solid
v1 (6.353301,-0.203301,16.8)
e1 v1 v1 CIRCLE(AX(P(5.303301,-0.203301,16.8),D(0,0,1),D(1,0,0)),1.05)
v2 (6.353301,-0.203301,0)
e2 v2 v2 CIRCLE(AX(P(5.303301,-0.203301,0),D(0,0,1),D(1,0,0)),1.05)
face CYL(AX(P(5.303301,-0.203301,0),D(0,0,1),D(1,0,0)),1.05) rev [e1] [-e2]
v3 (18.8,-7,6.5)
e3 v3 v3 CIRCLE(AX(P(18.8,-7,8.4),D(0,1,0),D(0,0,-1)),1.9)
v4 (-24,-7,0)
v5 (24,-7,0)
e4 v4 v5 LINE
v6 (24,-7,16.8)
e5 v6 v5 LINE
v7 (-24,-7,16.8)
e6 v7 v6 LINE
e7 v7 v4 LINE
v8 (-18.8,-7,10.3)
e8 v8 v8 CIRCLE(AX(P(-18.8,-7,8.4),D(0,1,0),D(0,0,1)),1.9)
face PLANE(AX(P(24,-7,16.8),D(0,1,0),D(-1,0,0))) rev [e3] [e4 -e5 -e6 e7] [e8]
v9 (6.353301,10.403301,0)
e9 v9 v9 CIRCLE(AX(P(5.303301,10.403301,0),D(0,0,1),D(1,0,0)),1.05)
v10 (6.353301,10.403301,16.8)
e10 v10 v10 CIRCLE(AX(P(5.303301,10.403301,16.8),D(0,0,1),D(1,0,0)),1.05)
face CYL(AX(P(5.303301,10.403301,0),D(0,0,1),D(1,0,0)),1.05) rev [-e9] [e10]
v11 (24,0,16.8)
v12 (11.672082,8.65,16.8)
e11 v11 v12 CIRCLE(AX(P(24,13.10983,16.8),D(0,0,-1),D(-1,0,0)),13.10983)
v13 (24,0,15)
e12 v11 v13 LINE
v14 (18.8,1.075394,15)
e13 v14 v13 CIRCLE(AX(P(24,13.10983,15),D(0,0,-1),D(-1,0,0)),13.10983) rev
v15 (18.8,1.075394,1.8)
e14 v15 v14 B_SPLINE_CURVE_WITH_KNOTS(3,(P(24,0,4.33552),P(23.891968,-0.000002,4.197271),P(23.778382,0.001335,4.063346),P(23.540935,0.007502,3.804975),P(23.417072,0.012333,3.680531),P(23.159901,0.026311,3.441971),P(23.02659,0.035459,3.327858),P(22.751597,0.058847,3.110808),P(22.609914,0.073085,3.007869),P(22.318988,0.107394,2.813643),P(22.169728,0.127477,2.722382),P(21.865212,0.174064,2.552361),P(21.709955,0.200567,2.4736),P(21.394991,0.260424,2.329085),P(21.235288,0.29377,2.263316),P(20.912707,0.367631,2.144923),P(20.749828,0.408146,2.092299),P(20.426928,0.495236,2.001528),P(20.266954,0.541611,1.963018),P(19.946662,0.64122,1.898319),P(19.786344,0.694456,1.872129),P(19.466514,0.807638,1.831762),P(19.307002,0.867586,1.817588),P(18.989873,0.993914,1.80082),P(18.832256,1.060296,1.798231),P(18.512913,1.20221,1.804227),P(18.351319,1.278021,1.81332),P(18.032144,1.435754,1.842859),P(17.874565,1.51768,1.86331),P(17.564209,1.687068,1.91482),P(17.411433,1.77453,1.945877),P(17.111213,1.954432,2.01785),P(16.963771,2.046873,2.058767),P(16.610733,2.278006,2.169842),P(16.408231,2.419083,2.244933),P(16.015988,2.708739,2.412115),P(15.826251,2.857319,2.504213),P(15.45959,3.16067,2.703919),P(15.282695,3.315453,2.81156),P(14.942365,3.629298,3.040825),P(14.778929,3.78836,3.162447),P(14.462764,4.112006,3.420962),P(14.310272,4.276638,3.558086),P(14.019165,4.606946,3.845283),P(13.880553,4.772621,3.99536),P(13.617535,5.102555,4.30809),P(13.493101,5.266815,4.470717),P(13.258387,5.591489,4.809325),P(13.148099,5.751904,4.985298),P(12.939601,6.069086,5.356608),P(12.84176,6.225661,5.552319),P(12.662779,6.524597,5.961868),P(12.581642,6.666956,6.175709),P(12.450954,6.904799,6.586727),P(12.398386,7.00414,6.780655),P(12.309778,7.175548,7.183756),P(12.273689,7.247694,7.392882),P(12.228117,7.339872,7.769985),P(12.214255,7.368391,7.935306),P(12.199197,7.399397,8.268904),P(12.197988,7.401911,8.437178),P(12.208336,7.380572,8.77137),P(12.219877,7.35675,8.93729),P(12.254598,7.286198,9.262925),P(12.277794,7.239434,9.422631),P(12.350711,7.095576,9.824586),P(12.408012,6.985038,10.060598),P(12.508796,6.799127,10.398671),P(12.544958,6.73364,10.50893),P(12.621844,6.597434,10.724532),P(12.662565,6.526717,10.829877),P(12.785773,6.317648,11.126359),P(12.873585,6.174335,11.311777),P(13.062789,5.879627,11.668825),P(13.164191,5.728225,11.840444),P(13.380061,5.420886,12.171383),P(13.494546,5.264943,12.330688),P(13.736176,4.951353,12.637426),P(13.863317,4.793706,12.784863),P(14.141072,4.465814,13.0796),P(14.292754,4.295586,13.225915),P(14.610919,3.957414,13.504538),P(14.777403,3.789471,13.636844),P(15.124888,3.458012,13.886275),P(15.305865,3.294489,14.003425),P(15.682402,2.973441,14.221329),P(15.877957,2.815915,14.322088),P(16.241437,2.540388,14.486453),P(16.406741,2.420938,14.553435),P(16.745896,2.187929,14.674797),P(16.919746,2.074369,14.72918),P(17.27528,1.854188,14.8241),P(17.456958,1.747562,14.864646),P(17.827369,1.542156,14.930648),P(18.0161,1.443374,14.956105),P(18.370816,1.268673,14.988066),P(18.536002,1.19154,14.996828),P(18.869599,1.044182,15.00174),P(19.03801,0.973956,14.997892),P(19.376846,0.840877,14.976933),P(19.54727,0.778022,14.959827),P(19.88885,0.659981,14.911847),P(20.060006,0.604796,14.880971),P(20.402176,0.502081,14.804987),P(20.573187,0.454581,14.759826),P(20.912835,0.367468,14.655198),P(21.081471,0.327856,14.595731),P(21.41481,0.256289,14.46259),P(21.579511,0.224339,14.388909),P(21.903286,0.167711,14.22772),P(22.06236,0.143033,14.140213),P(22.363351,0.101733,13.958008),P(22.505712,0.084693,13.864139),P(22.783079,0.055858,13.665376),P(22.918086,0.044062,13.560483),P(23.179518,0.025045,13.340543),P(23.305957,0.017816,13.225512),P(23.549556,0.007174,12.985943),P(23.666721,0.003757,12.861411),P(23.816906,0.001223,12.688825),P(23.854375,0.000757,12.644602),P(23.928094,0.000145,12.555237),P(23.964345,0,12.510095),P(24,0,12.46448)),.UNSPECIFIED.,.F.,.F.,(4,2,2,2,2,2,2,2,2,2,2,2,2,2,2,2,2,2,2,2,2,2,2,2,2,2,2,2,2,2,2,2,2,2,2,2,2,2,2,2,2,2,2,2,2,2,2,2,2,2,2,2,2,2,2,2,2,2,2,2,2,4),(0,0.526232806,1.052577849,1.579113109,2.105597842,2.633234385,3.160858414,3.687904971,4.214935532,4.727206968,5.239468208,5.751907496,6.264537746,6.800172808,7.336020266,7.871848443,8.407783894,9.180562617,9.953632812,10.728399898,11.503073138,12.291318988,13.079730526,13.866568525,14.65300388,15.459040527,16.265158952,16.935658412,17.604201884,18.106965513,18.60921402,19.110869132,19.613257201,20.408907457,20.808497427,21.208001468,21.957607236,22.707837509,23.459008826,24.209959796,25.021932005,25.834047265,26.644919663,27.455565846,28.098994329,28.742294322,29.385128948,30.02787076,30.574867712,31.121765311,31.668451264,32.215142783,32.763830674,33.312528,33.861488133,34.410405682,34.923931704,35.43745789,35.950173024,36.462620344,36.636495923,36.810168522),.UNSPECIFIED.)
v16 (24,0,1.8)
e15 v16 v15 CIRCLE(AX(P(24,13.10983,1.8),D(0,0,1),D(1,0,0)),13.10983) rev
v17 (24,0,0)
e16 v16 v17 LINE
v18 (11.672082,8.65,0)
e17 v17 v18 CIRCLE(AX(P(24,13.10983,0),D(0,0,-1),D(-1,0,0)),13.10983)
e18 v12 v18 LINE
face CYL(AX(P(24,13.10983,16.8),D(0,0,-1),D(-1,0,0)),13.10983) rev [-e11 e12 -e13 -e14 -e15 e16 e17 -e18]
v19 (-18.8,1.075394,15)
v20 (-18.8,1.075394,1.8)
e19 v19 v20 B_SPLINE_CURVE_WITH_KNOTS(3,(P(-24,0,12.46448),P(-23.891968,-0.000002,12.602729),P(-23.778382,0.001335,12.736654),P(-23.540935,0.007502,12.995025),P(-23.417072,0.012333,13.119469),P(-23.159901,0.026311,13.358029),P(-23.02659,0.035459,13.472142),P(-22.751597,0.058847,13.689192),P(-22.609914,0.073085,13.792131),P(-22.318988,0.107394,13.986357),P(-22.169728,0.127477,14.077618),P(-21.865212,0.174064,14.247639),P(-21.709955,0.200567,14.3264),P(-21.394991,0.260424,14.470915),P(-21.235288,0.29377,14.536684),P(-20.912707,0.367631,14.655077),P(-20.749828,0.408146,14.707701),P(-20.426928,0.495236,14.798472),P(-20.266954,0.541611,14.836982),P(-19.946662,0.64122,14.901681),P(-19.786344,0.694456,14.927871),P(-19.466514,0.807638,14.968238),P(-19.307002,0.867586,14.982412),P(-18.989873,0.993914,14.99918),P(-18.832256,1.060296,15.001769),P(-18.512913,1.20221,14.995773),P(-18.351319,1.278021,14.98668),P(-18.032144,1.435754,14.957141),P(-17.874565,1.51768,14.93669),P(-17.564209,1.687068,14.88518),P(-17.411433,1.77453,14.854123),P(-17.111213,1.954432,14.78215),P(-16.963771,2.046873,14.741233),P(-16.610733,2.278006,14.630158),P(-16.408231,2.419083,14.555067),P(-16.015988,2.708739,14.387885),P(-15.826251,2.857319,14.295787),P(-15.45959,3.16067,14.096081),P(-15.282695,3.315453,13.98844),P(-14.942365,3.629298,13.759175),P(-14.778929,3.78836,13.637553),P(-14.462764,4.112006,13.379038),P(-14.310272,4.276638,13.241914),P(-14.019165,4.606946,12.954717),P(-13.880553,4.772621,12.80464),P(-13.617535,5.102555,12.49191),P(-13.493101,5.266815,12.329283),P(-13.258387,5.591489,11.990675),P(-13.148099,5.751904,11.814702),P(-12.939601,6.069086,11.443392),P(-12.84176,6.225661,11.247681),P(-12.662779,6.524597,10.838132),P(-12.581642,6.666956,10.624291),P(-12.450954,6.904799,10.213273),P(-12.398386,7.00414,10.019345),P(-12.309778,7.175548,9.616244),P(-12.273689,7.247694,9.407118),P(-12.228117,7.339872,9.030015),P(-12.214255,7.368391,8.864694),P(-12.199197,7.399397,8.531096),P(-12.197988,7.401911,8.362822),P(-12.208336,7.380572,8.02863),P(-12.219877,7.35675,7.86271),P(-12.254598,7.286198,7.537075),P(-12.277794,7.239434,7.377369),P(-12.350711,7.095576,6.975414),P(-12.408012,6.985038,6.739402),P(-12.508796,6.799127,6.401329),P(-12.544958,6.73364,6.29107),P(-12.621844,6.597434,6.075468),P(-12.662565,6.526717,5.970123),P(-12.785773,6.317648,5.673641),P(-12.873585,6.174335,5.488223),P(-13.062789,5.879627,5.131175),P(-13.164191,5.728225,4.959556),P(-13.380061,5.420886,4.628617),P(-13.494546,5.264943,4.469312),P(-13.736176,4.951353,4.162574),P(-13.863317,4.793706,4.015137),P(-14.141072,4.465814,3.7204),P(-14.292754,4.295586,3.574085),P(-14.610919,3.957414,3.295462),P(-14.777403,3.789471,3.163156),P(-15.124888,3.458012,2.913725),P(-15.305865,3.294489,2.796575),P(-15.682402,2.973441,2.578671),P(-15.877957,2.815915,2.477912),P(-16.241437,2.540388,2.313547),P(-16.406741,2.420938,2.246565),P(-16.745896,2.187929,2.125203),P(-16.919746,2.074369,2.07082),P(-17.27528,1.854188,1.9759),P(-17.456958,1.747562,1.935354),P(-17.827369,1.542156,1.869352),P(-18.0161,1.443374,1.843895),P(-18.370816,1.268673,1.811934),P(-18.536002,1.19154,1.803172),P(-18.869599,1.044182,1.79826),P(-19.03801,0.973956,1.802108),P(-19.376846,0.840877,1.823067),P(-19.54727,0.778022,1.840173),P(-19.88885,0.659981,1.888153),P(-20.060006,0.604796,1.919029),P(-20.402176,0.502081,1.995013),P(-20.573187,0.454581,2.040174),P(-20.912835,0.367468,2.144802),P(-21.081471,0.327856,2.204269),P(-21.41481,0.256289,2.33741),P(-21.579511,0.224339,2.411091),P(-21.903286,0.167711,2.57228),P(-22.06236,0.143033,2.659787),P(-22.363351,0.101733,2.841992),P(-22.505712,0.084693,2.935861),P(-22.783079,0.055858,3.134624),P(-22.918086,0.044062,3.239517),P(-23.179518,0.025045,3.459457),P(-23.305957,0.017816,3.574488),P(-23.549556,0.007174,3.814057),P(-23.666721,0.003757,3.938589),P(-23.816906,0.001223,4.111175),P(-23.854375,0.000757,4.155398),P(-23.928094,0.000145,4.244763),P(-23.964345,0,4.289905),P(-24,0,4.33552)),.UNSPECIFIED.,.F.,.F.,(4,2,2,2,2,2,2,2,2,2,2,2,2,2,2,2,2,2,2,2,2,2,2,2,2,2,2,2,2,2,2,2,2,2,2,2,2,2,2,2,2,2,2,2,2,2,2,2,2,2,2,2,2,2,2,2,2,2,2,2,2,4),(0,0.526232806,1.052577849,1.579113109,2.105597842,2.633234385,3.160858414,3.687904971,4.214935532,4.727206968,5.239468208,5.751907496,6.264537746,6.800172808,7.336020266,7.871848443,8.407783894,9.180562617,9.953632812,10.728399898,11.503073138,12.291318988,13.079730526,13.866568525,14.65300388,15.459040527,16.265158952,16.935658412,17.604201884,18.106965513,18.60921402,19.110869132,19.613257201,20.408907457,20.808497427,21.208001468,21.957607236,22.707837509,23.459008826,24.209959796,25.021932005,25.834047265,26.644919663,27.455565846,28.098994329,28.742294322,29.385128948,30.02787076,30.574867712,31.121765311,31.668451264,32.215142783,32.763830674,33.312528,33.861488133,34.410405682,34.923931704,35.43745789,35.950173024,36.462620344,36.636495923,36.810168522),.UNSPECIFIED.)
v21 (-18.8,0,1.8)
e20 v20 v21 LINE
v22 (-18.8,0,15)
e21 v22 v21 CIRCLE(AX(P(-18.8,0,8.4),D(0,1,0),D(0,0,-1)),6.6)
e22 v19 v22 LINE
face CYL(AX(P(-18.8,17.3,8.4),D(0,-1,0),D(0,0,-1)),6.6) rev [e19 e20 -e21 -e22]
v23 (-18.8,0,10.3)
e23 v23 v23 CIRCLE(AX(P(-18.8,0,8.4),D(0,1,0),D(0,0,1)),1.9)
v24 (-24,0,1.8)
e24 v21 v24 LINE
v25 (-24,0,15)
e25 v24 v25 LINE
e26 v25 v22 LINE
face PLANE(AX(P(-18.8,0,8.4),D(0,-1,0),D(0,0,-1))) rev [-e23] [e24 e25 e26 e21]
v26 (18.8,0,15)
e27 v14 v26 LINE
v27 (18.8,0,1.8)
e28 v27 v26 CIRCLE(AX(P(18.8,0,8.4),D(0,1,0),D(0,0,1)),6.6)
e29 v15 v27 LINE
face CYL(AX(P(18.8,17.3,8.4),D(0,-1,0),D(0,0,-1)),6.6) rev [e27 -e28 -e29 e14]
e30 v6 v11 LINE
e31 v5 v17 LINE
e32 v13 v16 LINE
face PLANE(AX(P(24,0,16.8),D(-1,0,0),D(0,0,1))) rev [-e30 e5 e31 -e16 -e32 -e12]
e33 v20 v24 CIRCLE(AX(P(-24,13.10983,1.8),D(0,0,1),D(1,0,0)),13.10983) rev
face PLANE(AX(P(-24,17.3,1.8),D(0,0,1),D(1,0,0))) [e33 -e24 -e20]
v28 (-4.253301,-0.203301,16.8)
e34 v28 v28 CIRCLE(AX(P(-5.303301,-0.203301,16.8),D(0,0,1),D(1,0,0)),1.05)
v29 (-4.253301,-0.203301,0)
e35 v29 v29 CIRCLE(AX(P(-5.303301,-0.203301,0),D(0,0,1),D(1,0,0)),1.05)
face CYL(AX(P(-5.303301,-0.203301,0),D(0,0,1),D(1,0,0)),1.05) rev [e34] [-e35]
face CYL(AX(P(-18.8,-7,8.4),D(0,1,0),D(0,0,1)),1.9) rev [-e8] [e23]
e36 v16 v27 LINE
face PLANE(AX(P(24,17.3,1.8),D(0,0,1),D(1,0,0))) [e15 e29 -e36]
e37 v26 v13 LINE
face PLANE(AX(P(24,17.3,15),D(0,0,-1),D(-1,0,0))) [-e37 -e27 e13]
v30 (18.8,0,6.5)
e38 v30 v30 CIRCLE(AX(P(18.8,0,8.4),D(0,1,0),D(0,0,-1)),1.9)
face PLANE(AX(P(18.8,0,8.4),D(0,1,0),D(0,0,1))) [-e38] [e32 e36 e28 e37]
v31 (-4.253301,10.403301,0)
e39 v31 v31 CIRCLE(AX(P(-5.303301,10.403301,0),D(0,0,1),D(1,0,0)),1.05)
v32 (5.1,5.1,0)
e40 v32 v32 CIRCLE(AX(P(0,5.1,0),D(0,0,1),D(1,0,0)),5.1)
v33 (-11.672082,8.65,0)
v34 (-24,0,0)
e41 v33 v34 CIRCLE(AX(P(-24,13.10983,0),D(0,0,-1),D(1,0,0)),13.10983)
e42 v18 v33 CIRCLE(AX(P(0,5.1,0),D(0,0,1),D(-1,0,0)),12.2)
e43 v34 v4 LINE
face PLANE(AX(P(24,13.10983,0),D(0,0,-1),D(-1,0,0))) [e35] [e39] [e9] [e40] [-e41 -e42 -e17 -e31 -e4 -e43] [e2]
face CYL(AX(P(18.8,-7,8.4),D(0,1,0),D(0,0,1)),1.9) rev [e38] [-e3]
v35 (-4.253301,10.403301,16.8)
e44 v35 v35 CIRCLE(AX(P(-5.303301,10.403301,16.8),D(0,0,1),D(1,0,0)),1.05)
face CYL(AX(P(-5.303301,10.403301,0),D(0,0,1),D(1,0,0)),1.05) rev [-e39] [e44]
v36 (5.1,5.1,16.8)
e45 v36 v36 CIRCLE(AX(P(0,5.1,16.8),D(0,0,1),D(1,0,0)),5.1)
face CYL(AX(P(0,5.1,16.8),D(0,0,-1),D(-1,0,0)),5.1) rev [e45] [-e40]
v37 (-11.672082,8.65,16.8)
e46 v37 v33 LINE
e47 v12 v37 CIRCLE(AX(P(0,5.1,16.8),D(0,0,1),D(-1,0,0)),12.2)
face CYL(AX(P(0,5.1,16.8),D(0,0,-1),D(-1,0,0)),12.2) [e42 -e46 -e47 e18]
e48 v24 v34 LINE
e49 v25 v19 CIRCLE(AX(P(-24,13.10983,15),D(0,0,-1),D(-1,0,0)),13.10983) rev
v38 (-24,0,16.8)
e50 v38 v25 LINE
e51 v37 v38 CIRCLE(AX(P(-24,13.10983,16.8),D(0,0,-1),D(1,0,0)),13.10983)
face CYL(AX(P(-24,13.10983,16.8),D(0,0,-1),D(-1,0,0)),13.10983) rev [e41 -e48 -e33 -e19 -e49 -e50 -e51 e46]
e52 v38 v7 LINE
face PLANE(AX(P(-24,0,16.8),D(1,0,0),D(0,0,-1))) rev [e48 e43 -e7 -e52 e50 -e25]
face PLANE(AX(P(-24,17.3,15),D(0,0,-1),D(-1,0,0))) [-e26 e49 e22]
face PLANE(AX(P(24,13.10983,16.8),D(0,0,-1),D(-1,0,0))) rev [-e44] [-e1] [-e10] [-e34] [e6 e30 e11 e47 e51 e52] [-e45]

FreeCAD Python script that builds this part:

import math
import FreeCAD as App
import Part
import Sketcher

doc = App.newDocument("Part")
body = doc.addObject("PartDesign::Body", "Body")

sketch1 = body.newObject("Sketcher::SketchObject", "Sketch")
sketch1.AttachmentSupport = (doc.getObject("XY_Plane"), [""])
sketch1.MapMode = "FlatFace"
sketch1.addGeometry([
    Part.LineSegment(App.Vector(24, -7, 0), App.Vector(24, 0, 0)),
    Part.ArcOfCircle(Part.Circle(App.Vector(24, 13, 0), App.Vector(0, 0, 1), 13), math.radians(-160), math.radians(-90)),
    Part.ArcOfCircle(Part.Circle(App.Vector(0, 5, 0), App.Vector(0, 0, 1), 12), math.radians(17), math.radians(163)),
    Part.ArcOfCircle(Part.Circle(App.Vector(-24, 13, 0), App.Vector(0, 0, 1), 13), math.radians(-90), math.radians(-20)),
    Part.LineSegment(App.Vector(-24, 0, 0), App.Vector(-24, -7, 0)),
    Part.LineSegment(App.Vector(-24, -7, 0), App.Vector(24, -7, 0)),
    Part.Circle(App.Vector(0, 5, 0), App.Vector(0, 0, 1), 5),
], False)
sketch1.addConstraint([
    Sketcher.Constraint("Coincident", 0, 2, 1, 2),
    Sketcher.Constraint("Coincident", 1, 1, 2, 1),
    Sketcher.Constraint("Coincident", 2, 2, 3, 2),
    Sketcher.Constraint("Coincident", 3, 1, 4, 1),
    Sketcher.Constraint("Coincident", 4, 2, 5, 1),
    Sketcher.Constraint("Coincident", 5, 2, 0, 1),
    Sketcher.Constraint("Vertical", 0),
    Sketcher.Constraint("Vertical", 4),
    Sketcher.Constraint("Horizontal", 5),
    Sketcher.Constraint("Coincident", 6, 3, 2, 3),
    Sketcher.Constraint("Equal", 1, 3),
    Sketcher.Constraint("Symmetric", 0, 2, 3, 1, -1, 1),
    Sketcher.Constraint("Symmetric", 1, 3, 3, 3, -2),
    Sketcher.Constraint("PointOnObject", 2, 3, -2),
    Sketcher.Constraint("Vertical", 1, 3, 0, 2),
    Sketcher.Constraint("Diameter", 6, 10.2),
    Sketcher.Constraint("Radius", 2, 12.2),
    Sketcher.Constraint("DistanceX", 5, 1, 5, 2, 48.0),
    Sketcher.Constraint("DistanceY", 0, 1, 0, 2, 7.0),
    Sketcher.Constraint("DistanceY", -1, 1, 2, 3, 5.1),
    Sketcher.Constraint("DistanceY", -1, 1, 1, 1, 8.65),
])
pad1 = body.newObject("PartDesign::Pad", "Pad")
pad1.Profile = sketch1
pad1.Length = 16.8

sketch2 = body.newObject("Sketcher::SketchObject", "Sketch001")
sketch2.AttachmentSupport = (doc.getObject("XY_Plane"), [""])
sketch2.MapMode = "FlatFace"
sketch2.AttachmentOffset = App.Placement(App.Vector(0, 0, 16.8), App.Rotation())
sketch2.addGeometry([
    Part.Circle(App.Vector(5.3, 10.4, 0), App.Vector(0, 0, 1), 1.1),
    Part.Circle(App.Vector(5.3, -0.2, 0), App.Vector(0, 0, 1), 1.1),
    Part.Circle(App.Vector(-5.3, -0.2, 0), App.Vector(0, 0, 1), 1.1),
    Part.Circle(App.Vector(-5.3, 10.4, 0), App.Vector(0, 0, 1), 1.1),
], False)
sketch2.addConstraint([
    Sketcher.Constraint("Equal", 0, 1),
    Sketcher.Constraint("Equal", 1, 2),
    Sketcher.Constraint("Equal", 2, 3),
    Sketcher.Constraint("Symmetric", 1, 3, 2, 3, -2),
    Sketcher.Constraint("Symmetric", 0, 3, 3, 3, -2),
    Sketcher.Constraint("Vertical", 0, 3, 1, 3),
    Sketcher.Constraint("Diameter", 0, 2.1),
    Sketcher.Constraint("DistanceX", -1, 1, 0, 3, 5.303301),
    Sketcher.Constraint("DistanceY", -1, 1, 0, 3, 10.403301),
    Sketcher.Constraint("DistanceY", 1, 3, -1, 1, 0.203301),
])
pocket1 = body.newObject("PartDesign::Pocket", "Pocket")
pocket1.Profile = sketch2
pocket1.Type = "ThroughAll"

sketch3 = body.newObject("Sketcher::SketchObject", "Sketch002")
sketch3.AttachmentSupport = (doc.getObject("XZ_Plane"), [""])
sketch3.MapMode = "FlatFace"
sketch3.addGeometry([
    Part.LineSegment(App.Vector(-24, 2, 0), App.Vector(-24, 15, 0)),
    Part.LineSegment(App.Vector(-24, 15, 0), App.Vector(-19, 15, 0)),
    Part.ArcOfCircle(Part.Circle(App.Vector(-19, 8, 0), App.Vector(0, 0, 1), 7), math.radians(-90), math.radians(90)),
    Part.LineSegment(App.Vector(-19, 2, 0), App.Vector(-24, 2, 0)),
    Part.LineSegment(App.Vector(19, 15, 0), App.Vector(24, 15, 0)),
    Part.LineSegment(App.Vector(24, 15, 0), App.Vector(24, 2, 0)),
    Part.LineSegment(App.Vector(24, 2, 0), App.Vector(19, 2, 0)),
    Part.ArcOfCircle(Part.Circle(App.Vector(19, 8, 0), App.Vector(0, 0, 1), 7), math.radians(90), math.radians(270)),
], False)
sketch3.addConstraint([
    Sketcher.Constraint("Coincident", 0, 2, 1, 1),
    Sketcher.Constraint("Tangent", 1, 2, 2, 2),
    Sketcher.Constraint("Tangent", 2, 1, 3, 1),
    Sketcher.Constraint("Coincident", 3, 2, 0, 1),
    Sketcher.Constraint("Coincident", 4, 2, 5, 1),
    Sketcher.Constraint("Coincident", 5, 2, 6, 1),
    Sketcher.Constraint("Tangent", 6, 2, 7, 2),
    Sketcher.Constraint("Tangent", 7, 1, 4, 1),
    Sketcher.Constraint("Vertical", 0),
    Sketcher.Constraint("Horizontal", 1),
    Sketcher.Constraint("Horizontal", 3),
    Sketcher.Constraint("Horizontal", 4),
    Sketcher.Constraint("Vertical", 5),
    Sketcher.Constraint("Horizontal", 6),
    Sketcher.Constraint("Equal", 2, 7),
    Sketcher.Constraint("Symmetric", 2, 3, 7, 3, -2),
    Sketcher.Constraint("Equal", 3, 4),
    Sketcher.Constraint("Radius", 2, 6.6),
    Sketcher.Constraint("DistanceX", 1, 1, 1, 2, 5.2),
    Sketcher.Constraint("DistanceX", 0, 2, -1, 1, 24.0),
    Sketcher.Constraint("DistanceY", -1, 1, 0, 2, 15.0),
])
pocket2 = body.newObject("PartDesign::Pocket", "Pocket001")
pocket2.Profile = sketch3
pocket2.Type = "ThroughAll"

sketch4 = body.newObject("Sketcher::SketchObject", "Sketch003")
sketch4.AttachmentSupport = (doc.getObject("XZ_Plane"), [""])
sketch4.MapMode = "FlatFace"
sketch4.addGeometry([
    Part.Circle(App.Vector(-18.8, 8.4, 0), App.Vector(0, 0, 1), 1.9),
    Part.Circle(App.Vector(18.8, 8.4, 0), App.Vector(0, 0, 1), 1.9),
], False)
sketch4.addConstraint([
    Sketcher.Constraint("Equal", 0, 1),
    Sketcher.Constraint("Symmetric", 0, 3, 1, 3, -2),
    Sketcher.Constraint("Diameter", 0, 3.8),
    Sketcher.Constraint("DistanceX", 0, 3, -1, 1, 18.8),
    Sketcher.Constraint("DistanceY", -1, 1, 0, 3, 8.4),
])
pocket3 = body.newObject("PartDesign::Pocket", "Pocket002")
pocket3.Profile = sketch4
pocket3.Type = "ThroughAll"
pocket3.Reversed = True

doc.recompute()
